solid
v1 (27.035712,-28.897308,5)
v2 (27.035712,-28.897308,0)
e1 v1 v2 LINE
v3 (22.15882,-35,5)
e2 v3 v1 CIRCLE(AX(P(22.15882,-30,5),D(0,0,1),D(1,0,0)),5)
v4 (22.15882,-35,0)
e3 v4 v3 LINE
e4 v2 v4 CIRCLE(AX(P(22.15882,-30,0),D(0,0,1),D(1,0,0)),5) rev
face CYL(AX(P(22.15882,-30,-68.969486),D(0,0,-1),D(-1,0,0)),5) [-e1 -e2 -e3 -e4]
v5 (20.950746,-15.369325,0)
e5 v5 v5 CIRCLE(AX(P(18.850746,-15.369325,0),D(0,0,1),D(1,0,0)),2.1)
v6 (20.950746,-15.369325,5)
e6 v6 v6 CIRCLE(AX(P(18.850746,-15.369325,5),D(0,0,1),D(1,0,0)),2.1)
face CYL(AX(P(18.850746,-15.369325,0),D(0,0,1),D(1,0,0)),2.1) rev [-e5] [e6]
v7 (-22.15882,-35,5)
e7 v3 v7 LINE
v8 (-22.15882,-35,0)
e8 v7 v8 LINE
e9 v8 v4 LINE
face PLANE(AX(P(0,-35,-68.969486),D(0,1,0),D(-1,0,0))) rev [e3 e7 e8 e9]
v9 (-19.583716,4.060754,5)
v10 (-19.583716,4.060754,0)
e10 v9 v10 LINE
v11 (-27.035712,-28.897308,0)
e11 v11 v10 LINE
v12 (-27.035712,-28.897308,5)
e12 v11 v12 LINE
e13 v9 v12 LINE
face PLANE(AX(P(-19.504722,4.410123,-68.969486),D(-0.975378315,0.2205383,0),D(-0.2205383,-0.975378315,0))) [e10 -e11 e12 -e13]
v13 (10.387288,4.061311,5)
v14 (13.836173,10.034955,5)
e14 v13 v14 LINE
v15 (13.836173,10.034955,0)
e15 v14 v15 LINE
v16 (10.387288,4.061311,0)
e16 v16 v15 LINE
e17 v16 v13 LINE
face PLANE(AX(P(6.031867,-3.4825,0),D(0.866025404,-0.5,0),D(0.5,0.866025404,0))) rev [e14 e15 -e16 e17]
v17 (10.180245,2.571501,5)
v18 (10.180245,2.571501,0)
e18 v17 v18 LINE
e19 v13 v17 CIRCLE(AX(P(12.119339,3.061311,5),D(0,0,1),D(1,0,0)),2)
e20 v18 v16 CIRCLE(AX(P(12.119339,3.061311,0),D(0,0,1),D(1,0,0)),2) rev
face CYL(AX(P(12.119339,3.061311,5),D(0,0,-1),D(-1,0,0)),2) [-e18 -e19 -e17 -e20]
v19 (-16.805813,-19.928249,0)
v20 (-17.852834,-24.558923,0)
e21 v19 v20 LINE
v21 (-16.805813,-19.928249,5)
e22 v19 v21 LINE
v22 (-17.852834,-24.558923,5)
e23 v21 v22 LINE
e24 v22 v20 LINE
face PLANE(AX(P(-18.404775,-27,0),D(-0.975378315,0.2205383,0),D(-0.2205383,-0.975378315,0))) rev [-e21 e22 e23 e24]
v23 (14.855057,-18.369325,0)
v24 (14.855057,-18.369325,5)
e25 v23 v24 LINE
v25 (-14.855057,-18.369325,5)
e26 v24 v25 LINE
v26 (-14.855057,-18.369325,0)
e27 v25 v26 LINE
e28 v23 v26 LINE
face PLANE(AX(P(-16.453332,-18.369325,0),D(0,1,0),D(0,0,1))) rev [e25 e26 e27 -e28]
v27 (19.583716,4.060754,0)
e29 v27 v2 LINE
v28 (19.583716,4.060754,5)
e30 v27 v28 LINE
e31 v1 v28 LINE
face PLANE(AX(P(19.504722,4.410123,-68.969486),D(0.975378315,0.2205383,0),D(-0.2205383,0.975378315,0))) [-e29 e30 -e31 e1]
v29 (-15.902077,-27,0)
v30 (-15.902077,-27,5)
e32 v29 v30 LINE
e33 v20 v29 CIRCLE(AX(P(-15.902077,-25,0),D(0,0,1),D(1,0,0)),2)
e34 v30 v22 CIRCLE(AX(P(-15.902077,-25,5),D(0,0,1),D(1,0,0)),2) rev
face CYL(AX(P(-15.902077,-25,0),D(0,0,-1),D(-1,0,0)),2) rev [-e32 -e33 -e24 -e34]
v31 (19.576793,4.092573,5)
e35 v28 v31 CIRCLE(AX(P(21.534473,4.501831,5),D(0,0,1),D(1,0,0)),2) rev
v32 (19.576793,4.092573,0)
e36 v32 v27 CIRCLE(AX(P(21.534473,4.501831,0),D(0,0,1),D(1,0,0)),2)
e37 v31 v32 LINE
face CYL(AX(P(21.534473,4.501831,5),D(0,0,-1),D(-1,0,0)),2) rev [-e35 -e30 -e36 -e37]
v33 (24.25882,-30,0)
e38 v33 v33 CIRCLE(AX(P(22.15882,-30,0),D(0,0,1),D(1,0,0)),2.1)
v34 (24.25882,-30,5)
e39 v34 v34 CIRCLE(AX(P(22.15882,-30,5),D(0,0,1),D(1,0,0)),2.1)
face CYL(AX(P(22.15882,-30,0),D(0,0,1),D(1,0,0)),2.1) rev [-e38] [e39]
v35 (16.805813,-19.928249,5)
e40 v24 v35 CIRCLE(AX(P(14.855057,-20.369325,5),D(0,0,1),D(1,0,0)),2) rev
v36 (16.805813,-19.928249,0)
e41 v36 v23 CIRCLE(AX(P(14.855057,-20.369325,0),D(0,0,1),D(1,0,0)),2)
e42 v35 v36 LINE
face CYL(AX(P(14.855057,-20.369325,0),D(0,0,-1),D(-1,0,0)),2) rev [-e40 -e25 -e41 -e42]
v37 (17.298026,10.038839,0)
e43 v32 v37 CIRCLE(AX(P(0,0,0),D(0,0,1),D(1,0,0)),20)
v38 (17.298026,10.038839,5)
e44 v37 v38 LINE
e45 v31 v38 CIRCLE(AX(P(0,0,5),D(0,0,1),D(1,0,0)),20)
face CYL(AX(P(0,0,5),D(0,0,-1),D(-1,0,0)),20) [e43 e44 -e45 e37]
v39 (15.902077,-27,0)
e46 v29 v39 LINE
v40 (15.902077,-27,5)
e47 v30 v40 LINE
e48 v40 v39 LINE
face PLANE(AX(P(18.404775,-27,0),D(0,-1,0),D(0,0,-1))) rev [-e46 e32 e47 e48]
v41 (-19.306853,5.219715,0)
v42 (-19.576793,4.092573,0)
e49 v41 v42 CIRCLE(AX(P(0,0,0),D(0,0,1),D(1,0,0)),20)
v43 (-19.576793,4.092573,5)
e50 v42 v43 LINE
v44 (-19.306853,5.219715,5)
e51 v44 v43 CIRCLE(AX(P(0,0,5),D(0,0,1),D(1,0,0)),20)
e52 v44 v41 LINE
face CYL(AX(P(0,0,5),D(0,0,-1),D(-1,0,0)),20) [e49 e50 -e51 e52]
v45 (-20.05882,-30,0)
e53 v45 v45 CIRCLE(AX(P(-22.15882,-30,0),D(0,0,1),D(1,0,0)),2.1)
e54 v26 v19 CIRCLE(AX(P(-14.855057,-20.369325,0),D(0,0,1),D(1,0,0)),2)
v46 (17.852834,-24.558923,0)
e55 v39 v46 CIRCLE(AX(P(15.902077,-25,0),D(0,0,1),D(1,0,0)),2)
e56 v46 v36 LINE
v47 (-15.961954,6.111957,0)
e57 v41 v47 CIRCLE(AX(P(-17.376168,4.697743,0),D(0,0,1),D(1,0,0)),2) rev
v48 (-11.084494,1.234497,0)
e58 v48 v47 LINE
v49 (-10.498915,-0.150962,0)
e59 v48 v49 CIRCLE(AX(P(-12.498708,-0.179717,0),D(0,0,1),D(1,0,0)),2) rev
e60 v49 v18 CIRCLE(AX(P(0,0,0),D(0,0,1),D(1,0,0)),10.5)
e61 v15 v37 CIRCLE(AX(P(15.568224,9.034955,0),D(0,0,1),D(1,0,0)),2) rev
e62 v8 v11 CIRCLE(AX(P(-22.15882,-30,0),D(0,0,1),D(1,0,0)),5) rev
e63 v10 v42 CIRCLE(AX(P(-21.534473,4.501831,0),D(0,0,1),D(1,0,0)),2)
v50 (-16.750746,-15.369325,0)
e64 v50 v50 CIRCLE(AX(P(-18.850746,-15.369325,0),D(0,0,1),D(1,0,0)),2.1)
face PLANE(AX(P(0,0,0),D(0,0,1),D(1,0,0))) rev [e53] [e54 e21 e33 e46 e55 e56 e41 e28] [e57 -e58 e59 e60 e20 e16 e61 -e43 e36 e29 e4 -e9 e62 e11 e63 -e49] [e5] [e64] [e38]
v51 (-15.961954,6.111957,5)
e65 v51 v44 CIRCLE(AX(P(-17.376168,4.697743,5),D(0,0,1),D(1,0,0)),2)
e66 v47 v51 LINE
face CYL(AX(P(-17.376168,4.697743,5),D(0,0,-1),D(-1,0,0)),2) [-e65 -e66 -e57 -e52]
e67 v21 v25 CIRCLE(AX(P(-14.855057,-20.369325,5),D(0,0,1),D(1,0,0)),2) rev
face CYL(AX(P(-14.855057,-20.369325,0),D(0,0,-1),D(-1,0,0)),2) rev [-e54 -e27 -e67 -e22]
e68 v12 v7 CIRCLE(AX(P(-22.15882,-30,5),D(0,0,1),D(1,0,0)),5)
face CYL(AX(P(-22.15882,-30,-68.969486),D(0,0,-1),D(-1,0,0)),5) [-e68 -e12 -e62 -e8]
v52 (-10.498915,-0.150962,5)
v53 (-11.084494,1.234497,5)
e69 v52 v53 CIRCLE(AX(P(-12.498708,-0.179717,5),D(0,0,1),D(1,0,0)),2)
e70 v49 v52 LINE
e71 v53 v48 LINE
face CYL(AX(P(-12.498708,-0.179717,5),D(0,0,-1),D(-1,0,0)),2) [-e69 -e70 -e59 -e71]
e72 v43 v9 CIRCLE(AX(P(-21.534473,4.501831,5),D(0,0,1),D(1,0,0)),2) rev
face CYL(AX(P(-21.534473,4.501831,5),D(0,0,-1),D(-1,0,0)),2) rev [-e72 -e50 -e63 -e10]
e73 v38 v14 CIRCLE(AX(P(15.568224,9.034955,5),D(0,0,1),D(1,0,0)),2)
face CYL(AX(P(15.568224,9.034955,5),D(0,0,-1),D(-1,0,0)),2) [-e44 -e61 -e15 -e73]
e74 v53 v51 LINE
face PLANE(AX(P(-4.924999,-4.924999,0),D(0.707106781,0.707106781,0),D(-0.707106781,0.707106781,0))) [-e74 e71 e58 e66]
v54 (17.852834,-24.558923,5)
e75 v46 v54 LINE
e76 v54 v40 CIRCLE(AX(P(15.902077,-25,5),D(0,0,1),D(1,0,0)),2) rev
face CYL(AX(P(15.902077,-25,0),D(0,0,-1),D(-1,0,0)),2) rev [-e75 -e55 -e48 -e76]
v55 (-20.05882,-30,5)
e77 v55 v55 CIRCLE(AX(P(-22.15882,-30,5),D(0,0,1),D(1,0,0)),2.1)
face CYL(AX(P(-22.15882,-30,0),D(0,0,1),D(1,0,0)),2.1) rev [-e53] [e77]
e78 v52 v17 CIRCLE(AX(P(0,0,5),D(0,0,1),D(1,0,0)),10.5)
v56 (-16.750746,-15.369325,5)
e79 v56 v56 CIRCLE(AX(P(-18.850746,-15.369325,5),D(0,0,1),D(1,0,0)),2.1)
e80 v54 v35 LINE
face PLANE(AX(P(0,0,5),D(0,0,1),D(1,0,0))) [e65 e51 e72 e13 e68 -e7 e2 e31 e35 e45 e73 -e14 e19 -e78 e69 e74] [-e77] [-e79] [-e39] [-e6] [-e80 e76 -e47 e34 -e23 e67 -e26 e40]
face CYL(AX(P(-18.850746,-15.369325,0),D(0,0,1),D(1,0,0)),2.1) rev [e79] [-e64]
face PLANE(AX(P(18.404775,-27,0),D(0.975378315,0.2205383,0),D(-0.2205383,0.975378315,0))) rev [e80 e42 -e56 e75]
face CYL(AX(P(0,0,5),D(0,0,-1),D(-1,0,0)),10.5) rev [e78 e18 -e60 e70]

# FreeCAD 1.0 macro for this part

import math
import FreeCAD as App
import Part
import Sketcher
Q = App.Units.Quantity


def edges_at(feature, points):
    """Names of the edges that pass closest to the given points."""
    edges = feature.Shape.Edges
    near = lambda p: min(range(len(edges)), key=lambda i: edges[i].distToShape(Part.Vertex(*p))[0])
    return sorted({f"Edge{near(p) + 1}" for p in points})

doc = App.newDocument("Part")
params = doc.addObject("Spreadsheet::Sheet", "Params")
for row, (alias, value) in enumerate([
    ("sketch1_diameter", "40 mm"),
    ("sketch1_diameter2", "21 mm"),
    ("pad1_length", "5 mm"),
    ("sketch2_radius", "20 mm"),
    ("pad2_length", "5 mm"),
    ("fillet_radius", "5 mm"),
    ("sketch3_diameter", "4.2 mm"),
    ("sketch4_radius", "20 mm"),
    ("sketch4_radius2", "10.5 mm"),
    ("fillet2_radius", "2 mm"),
], start=1):
    params.set(f"A{row}", alias)
    params.set(f"B{row}", "=" + value)
    params.setAlias(f"B{row}", alias)

body = doc.addObject("PartDesign::Body", "Body")

sketch1 = doc.addObject("Sketcher::SketchObject", "Sketch")
body.addObject(sketch1)
sketch1.AttachmentSupport = (doc.XY_Plane, [""])
sketch1.MapMode = "FlatFace"
sketch1.addGeometry(Part.Circle(App.Vector(0, 0, 0), App.Vector(0, 0, 1), 20), False)
sketch1.addGeometry(Part.Circle(App.Vector(0, 0, 0), App.Vector(0, 0, 1), 10.5), False)
sketch1.addConstraint(Sketcher.Constraint("Coincident", 0, 3, -1, 1))
sketch1.addConstraint(Sketcher.Constraint("Coincident", 1, 3, -1, 1))
sketch1.addConstraint(Sketcher.Constraint("Diameter", 0, 40.0))
sketch1.addConstraint(Sketcher.Constraint("Diameter", 1, 21.0))
sketch1.setExpression("Constraints[2]", "Params.sketch1_diameter")
sketch1.setExpression("Constraints[3]", "Params.sketch1_diameter2")
pad1 = doc.addObject("PartDesign::Pad", "Pad")
body.addObject(pad1)
pad1.Profile = sketch1
pad1.setExpression("Length", "Params.pad1_length")

sketch2 = doc.addObject("Sketcher::SketchObject", "Sketch001")
body.addObject(sketch2)
sketch2.AttachmentSupport = (doc.XY_Plane, [""])
sketch2.MapMode = "FlatFace"
sketch2.addGeometry(Part.LineSegment(App.Vector(-28.415563, -35, 0), App.Vector(28.415563, -35, 0)), False)
sketch2.addGeometry(Part.LineSegment(App.Vector(28.415563, -35, 0), App.Vector(19.58004, 4.077014, 0)), False)
sketch2.addGeometry(Part.ArcOfCircle(Part.Circle(App.Vector(0, 0, 0), App.Vector(0, 0, 1), 20), math.radians(0), math.radians(11.762228)), False)
sketch2.addGeometry(Part.ArcOfCircle(Part.Circle(App.Vector(0, 0, 0), App.Vector(0, 0, 1), 20), math.radians(168.237772), math.radians(360)), False)
sketch2.addGeometry(Part.LineSegment(App.Vector(-19.58004, 4.077014, 0), App.Vector(-28.415563, -35, 0)), False)
sketch2.addConstraint(Sketcher.Constraint("Coincident", 0, 2, 1, 1))
sketch2.addConstraint(Sketcher.Constraint("Coincident", 1, 2, 2, 2))
sketch2.addConstraint(Sketcher.Constraint("Tangent", 2, 1, 3, 2))
sketch2.addConstraint(Sketcher.Constraint("Coincident", 3, 1, 4, 1))
sketch2.addConstraint(Sketcher.Constraint("Coincident", 4, 2, 0, 1))
sketch2.addConstraint(Sketcher.Constraint("Horizontal", 0))
sketch2.addConstraint(Sketcher.Constraint("Coincident", 2, 3, -1, 1))
sketch2.addConstraint(Sketcher.Constraint("Equal", 2, 3))
sketch2.addConstraint(Sketcher.Constraint("PointOnObject", 2, 1, -1))
sketch2.addConstraint(Sketcher.Constraint("Horizontal", 1, 2, 3, 1))
sketch2.addConstraint(Sketcher.Constraint("Equal", 1, 4))
sketch2.addConstraint(Sketcher.Constraint("Radius", 2, 20.0))
sketch2.addConstraint(Sketcher.Constraint("DistanceY", 0, 2, -1, 1, 35.0))
sketch2.addConstraint(Sketcher.Constraint("DistanceX", 0, 1, 0, 2, 56.831127))
sketch2.addConstraint(Sketcher.Constraint("DistanceX", -1, 1, 1, 2, 19.58004))
sketch2.setExpression("Constraints[11]", "Params.sketch2_radius")
pad2 = doc.addObject("PartDesign::Pad", "Pad001")
body.addObject(pad2)
pad2.Profile = sketch2
pad2.setExpression("Length", "Params.pad2_length")
doc.recompute()

fillet = doc.addObject("PartDesign::Fillet", "Fillet")
body.addObject(fillet)
fillet.Base = (pad2, edges_at(pad2, [(28.416, -35, 2.5), (-28.416, -35, 2.5)]))
fillet.setExpression("Radius", "Params.fillet_radius")

sketch3 = doc.addObject("Sketcher::SketchObject", "Sketch002")
body.addObject(sketch3)
sketch3.AttachmentSupport = (doc.XY_Plane, [""])
sketch3.MapMode = "FlatFace"
sketch3.AttachmentOffset = App.Placement(App.Vector(0, 0, 5), App.Rotation())
sketch3.addGeometry(Part.Circle(App.Vector(22.15882, -30, 0), App.Vector(0, 0, 1), 2.1), False)
sketch3.addGeometry(Part.Circle(App.Vector(-22.15882, -30, 0), App.Vector(0, 0, 1), 2.1), False)
sketch3.addGeometry(Part.Circle(App.Vector(-18.850746, -15.369325, 0), App.Vector(0, 0, 1), 2.1), False)
sketch3.addGeometry(Part.Circle(App.Vector(18.850746, -15.369325, 0), App.Vector(0, 0, 1), 2.1), False)
sketch3.addGeometry(Part.LineSegment(App.Vector(16.453332, -18.369325, 0), App.Vector(-16.453332, -18.369325, 0)), False)
sketch3.addGeometry(Part.LineSegment(App.Vector(-16.453332, -18.369325, 0), App.Vector(-18.404775, -27, 0)), False)
sketch3.addGeometry(Part.LineSegment(App.Vector(-18.404775, -27, 0), App.Vector(18.404775, -27, 0)), False)
sketch3.addGeometry(Part.LineSegment(App.Vector(18.404775, -27, 0), App.Vector(16.453332, -18.369325, 0)), False)
sketch3.addConstraint(Sketcher.Constraint("Coincident", 4, 2, 5, 1))
sketch3.addConstraint(Sketcher.Constraint("Coincident", 5, 2, 6, 1))
sketch3.addConstraint(Sketcher.Constraint("Coincident", 6, 2, 7, 1))
sketch3.addConstraint(Sketcher.Constraint("Coincident", 7, 2, 4, 1))
sketch3.addConstraint(Sketcher.Constraint("Horizontal", 4))
sketch3.addConstraint(Sketcher.Constraint("Horizontal", 6))
sketch3.addConstraint(Sketcher.Constraint("Equal", 0, 1))
sketch3.addConstraint(Sketcher.Constraint("Equal", 1, 2))
sketch3.addConstraint(Sketcher.Constraint("Equal", 2, 3))
sketch3.addConstraint(Sketcher.Constraint("Symmetric", 0, 3, 1, 3, -2))
sketch3.addConstraint(Sketcher.Constraint("Symmetric", 2, 3, 3, 3, -2))
sketch3.addConstraint(Sketcher.Constraint("Equal", 5, 7))
sketch3.addConstraint(Sketcher.Constraint("Diameter", 0, 4.2))
sketch3.addConstraint(Sketcher.Constraint("DistanceY", 0, 3, -1, 1, 30.0))
sketch3.addConstraint(Sketcher.Constraint("DistanceY", 5, 2, -1, 1, 27.0))
sketch3.addConstraint(Sketcher.Constraint("DistanceY", 4, 2, 2, 3, 3.0))
sketch3.addConstraint(Sketcher.Constraint("DistanceX", 6, 1, 6, 2, 36.809549))
sketch3.addConstraint(Sketcher.Constraint("Distance", 5, 8.848541))
sketch3.addConstraint(Sketcher.Constraint("DistanceX", 4, 2, 4, 1, 32.906665))
sketch3.addConstraint(Sketcher.Constraint("DistanceX", -1, 1, 0, 3, 22.15882))
sketch3.addConstraint(Sketcher.Constraint("DistanceX", 2, 3, 3, 3, 37.701492))
sketch3.addConstraint(Sketcher.Constraint("DistanceX", 4, 2, 3, 3, 35.304078))
sketch3.setExpression("Constraints[12]", "Params.sketch3_diameter")
pocket1 = doc.addObject("PartDesign::Pocket", "Pocket")
body.addObject(pocket1)
pocket1.Profile = sketch3
pocket1.Type = "ThroughAll"

sketch4 = doc.addObject("Sketcher::SketchObject", "Sketch003")
body.addObject(sketch4)
sketch4.AttachmentSupport = (doc.XY_Plane, [""])
sketch4.MapMode = "FlatFace"
sketch4.AttachmentOffset = App.Placement(App.Vector(0, 0, 5), App.Rotation())
sketch4.addGeometry(Part.ArcOfCircle(Part.Circle(App.Vector(0, 0, 0), App.Vector(0, 0, 1), 20), math.radians(80.380315), math.radians(114.619685)), False)
sketch4.addGeometry(Part.ArcOfCircle(Part.Circle(App.Vector(0, 0, 0), App.Vector(0, 0, 1), 20), math.radians(114.619685), math.radians(155.380315)), False)
sketch4.addGeometry(Part.LineSegment(App.Vector(-18.181861, 8.331863, 0), App.Vector(-10.481021, 0.631024, 0)), False)
sketch4.addGeometry(Part.ArcOfCircle(Part.Circle(App.Vector(0, 0, 0), App.Vector(0, 0, 1), 10.5), math.radians(101.55459), math.radians(176.55459)), False)
sketch4.addGeometry(Part.ArcOfCircle(Part.Circle(App.Vector(0, 0, 0), App.Vector(0, 0, 1), 10.5), math.radians(93.44541), math.radians(101.55459)), False)
sketch4.addGeometry(Part.ArcOfCircle(Part.Circle(App.Vector(0, 0, 0), App.Vector(0, 0, 1), 10.5), math.radians(18.44541), math.radians(93.44541)), False)
sketch4.addGeometry(Part.LineSegment(App.Vector(9.960568, 3.32221, 0), App.Vector(15.405884, 12.753774, 0)), False)
sketch4.addGeometry(Part.ArcOfCircle(Part.Circle(App.Vector(0, 0, 0), App.Vector(0, 0, 1), 20), math.radians(39.619685), math.radians(80.380315)), False)
sketch4.addConstraint(Sketcher.Constraint("Tangent", 0, 2, 1, 1))
sketch4.addConstraint(Sketcher.Constraint("Coincident", 1, 2, 2, 1))
sketch4.addConstraint(Sketcher.Constraint("Coincident", 2, 2, 3, 2))
sketch4.addConstraint(Sketcher.Constraint("Tangent", 3, 1, 4, 2))
sketch4.addConstraint(Sketcher.Constraint("Tangent", 4, 1, 5, 2))
sketch4.addConstraint(Sketcher.Constraint("Coincident", 5, 1, 6, 1))
sketch4.addConstraint(Sketcher.Constraint("Coincident", 6, 2, 7, 1))
sketch4.addConstraint(Sketcher.Constraint("Tangent", 7, 2, 0, 1))
sketch4.addConstraint(Sketcher.Constraint("Coincident", 0, 3, -1, 1))
sketch4.addConstraint(Sketcher.Constraint("Coincident", 3, 3, -1, 1))
sketch4.addConstraint(Sketcher.Constraint("Coincident", 5, 3, -1, 1))
sketch4.addConstraint(Sketcher.Constraint("Equal", 0, 1))
sketch4.addConstraint(Sketcher.Constraint("Equal", 1, 7))
sketch4.addConstraint(Sketcher.Constraint("Equal", 2, 6))
sketch4.addConstraint(Sketcher.Constraint("Radius", 0, 20.0))
sketch4.addConstraint(Sketcher.Constraint("Radius", 3, 10.5))
sketch4.addConstraint(Sketcher.Constraint("Angle", 2, Q("-45 deg")))
sketch4.addConstraint(Sketcher.Constraint("Angle", 6, Q("60 deg")))
sketch4.addConstraint(Sketcher.Constraint("DistanceY", 6, 2, 7, 2, 6.965))
sketch4.addConstraint(Sketcher.Constraint("Distance", 2, 10.890631))
sketch4.addConstraint(Sketcher.Constraint("DistanceY", -1, 1, 0, 2, 18.181861))
sketch4.addConstraint(Sketcher.Constraint("DistanceY", -1, 1, 3, 1, 10.28721))
sketch4.addConstraint(Sketcher.Constraint("DistanceY", -1, 1, 4, 1, 10.481021))
sketch4.setExpression("Constraints[14]", "Params.sketch4_radius")
sketch4.setExpression("Constraints[15]", "Params.sketch4_radius2")
pocket2 = doc.addObject("PartDesign::Pocket", "Pocket001")
body.addObject(pocket2)
pocket2.Profile = sketch4
pocket2.Type = "ThroughAll"
doc.recompute()

fillet2 = doc.addObject("PartDesign::Fillet", "Fillet001")
body.addObject(fillet2)
fillet2.Base = (pocket2, edges_at(pocket2, [
    (-19.58, 4.077, 2.5),
    (19.58, 4.077, 2.5),
    (-18.405, -27, 2.5),
    (-16.453, -18.369, 2.5),
    (16.453, -18.369, 2.5),
    (18.405, -27, 2.5),
    (9.961, 3.322, 2.5),
    (-10.481, 0.631, 2.5),
    (-18.182, 8.332, 2.5),
    (15.406, 12.754, 2.5),
]))
fillet2.setExpression("Radius", "Params.fillet2_radius")

doc.recompute()
